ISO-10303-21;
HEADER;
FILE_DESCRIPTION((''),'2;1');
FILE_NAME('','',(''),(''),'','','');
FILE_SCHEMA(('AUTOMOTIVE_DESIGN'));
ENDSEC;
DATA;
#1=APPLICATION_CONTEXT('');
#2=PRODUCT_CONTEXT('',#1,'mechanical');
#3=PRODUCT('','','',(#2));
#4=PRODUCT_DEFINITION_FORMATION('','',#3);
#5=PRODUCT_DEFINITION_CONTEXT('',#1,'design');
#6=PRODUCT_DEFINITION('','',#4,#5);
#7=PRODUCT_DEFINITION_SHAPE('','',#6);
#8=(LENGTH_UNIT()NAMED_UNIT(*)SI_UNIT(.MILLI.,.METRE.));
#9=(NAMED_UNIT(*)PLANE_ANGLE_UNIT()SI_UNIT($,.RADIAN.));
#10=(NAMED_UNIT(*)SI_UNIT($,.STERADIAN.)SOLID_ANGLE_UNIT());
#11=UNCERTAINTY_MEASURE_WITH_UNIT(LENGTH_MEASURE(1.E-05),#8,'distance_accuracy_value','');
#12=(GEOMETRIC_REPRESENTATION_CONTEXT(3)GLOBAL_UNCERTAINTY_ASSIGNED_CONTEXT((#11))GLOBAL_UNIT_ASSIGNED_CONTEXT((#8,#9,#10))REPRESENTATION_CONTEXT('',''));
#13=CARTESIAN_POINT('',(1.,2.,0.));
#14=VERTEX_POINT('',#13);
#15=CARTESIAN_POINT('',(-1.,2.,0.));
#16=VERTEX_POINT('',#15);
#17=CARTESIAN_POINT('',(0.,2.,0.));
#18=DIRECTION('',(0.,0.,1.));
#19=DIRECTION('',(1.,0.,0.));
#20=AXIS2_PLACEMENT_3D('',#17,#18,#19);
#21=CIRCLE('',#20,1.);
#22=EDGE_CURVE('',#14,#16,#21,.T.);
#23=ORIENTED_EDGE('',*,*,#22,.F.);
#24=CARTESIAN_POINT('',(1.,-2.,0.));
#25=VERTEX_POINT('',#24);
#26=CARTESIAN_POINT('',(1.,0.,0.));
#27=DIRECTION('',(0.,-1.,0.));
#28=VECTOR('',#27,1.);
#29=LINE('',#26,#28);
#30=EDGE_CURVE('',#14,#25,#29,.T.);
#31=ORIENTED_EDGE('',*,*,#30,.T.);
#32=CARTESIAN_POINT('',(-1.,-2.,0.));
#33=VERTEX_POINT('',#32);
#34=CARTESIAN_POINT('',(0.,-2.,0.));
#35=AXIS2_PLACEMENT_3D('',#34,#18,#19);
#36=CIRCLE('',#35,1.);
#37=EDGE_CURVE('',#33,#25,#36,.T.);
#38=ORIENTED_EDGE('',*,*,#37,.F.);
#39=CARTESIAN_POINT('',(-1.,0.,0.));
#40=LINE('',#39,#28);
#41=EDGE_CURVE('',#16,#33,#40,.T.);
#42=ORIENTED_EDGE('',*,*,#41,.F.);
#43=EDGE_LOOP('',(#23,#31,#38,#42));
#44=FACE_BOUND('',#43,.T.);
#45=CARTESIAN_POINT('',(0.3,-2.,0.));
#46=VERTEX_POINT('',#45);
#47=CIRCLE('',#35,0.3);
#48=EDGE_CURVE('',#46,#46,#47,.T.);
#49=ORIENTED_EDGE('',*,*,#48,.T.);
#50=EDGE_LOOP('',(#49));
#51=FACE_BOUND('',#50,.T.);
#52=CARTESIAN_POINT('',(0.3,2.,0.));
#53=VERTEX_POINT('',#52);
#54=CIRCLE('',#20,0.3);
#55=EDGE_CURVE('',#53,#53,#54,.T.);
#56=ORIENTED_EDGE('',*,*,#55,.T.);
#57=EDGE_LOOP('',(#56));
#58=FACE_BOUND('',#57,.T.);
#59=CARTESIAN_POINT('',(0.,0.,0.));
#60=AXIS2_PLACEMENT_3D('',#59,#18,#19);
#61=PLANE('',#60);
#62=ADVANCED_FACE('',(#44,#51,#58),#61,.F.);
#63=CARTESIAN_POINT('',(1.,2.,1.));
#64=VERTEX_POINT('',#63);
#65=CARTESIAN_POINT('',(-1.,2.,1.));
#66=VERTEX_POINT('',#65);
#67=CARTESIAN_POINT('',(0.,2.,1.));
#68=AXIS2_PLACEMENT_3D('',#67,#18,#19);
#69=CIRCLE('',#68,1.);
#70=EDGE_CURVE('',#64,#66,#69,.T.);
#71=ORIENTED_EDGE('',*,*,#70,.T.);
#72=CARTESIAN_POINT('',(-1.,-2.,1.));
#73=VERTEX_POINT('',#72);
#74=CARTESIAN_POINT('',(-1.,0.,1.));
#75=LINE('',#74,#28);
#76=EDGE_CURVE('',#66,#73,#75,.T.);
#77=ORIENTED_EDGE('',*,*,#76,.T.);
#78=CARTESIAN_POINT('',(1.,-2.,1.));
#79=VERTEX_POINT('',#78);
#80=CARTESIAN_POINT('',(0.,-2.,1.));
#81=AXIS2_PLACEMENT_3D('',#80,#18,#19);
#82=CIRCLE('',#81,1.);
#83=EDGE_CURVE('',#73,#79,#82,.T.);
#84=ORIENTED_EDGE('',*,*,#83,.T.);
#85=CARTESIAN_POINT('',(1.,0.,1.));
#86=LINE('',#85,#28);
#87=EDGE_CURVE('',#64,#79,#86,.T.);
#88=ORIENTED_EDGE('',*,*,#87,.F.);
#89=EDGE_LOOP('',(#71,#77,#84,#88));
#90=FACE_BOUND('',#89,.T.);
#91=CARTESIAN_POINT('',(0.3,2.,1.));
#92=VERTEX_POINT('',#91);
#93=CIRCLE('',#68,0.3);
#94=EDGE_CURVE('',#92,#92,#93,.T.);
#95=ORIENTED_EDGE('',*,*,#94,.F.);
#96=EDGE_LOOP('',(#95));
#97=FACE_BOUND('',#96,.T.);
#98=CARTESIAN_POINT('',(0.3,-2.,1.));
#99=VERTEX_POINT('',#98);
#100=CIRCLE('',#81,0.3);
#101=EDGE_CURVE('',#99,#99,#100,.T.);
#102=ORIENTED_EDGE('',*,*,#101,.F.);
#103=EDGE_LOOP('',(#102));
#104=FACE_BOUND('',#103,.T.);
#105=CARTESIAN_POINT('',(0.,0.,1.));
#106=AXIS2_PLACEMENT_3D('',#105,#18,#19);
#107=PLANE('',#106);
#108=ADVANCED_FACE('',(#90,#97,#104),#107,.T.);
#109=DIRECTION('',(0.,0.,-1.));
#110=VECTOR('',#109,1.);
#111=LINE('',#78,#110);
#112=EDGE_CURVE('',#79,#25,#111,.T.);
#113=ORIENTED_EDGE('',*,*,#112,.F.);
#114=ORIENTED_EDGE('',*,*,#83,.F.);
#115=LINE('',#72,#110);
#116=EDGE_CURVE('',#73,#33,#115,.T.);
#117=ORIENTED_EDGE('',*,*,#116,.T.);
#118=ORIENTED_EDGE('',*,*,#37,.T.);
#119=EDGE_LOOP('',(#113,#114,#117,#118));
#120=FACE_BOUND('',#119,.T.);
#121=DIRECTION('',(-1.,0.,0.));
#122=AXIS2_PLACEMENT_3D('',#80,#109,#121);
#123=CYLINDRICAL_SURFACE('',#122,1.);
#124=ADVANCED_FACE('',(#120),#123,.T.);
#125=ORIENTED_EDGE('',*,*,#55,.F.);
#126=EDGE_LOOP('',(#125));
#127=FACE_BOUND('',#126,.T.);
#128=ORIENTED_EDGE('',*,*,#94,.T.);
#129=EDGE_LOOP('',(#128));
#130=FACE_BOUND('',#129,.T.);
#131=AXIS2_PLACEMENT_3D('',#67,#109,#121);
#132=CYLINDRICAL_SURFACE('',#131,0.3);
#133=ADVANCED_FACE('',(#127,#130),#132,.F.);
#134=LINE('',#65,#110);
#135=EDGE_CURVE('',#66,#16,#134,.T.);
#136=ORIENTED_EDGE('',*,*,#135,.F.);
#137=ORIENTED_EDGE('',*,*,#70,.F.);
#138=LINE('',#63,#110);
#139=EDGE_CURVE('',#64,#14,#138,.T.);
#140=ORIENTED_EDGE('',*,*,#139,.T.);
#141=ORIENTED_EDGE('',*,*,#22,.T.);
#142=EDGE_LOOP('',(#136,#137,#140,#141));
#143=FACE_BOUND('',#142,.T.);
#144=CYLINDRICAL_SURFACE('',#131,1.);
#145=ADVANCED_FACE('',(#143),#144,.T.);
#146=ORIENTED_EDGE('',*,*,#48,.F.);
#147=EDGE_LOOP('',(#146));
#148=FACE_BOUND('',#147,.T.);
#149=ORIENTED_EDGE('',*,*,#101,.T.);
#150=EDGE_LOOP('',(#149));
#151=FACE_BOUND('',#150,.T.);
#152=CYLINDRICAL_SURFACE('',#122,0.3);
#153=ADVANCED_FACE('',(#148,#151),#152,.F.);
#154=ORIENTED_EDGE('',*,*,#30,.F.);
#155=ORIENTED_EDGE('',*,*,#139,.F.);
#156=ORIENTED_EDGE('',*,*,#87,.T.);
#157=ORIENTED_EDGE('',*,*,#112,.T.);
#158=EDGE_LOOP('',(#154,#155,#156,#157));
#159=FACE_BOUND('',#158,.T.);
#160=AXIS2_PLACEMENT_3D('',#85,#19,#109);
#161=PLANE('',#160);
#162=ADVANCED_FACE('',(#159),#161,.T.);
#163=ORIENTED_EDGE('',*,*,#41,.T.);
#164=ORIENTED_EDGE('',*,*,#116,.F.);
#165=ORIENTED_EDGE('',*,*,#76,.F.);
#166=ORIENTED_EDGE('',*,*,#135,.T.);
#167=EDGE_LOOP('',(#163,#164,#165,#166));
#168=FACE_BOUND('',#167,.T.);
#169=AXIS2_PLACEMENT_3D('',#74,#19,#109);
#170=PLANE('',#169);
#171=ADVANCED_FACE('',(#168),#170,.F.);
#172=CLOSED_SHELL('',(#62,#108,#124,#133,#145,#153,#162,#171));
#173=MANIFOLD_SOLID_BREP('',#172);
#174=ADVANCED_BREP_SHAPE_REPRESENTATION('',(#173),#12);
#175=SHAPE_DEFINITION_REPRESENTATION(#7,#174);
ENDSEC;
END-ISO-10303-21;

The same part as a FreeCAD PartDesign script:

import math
import FreeCAD as App
import Part
import Sketcher

doc = App.newDocument("Part")
body = doc.addObject("PartDesign::Body", "Body")

sketch1 = doc.addObject("Sketcher::SketchObject", "Sketch")
body.addObject(sketch1)
sketch1.AttachmentSupport = (doc.XY_Plane, [""])
sketch1.MapMode = "FlatFace"
sketch1.addGeometry(Part.LineSegment(App.Vector(-1, 2, 0), App.Vector(-1, -2, 0)), False)
sketch1.addGeometry(Part.ArcOfCircle(Part.Circle(App.Vector(0, -2, 0), App.Vector(0, 0, 1), 1), math.radians(180), math.radians(360)), False)
sketch1.addGeometry(Part.LineSegment(App.Vector(1, -2, 0), App.Vector(1, 2, 0)), False)
sketch1.addGeometry(Part.ArcOfCircle(Part.Circle(App.Vector(0, 2, 0), App.Vector(0, 0, 1), 1), math.radians(0), math.radians(180)), False)
sketch1.addGeometry(Part.Circle(App.Vector(0, 2, 0), App.Vector(0, 0, 1), 0.3), False)
sketch1.addGeometry(Part.Circle(App.Vector(0, -2, 0), App.Vector(0, 0, 1), 0.3), False)
sketch1.addConstraint(Sketcher.Constraint("Tangent", 0, 2, 1, 1))
sketch1.addConstraint(Sketcher.Constraint("Tangent", 1, 2, 2, 1))
sketch1.addConstraint(Sketcher.Constraint("Tangent", 2, 2, 3, 1))
sketch1.addConstraint(Sketcher.Constraint("Tangent", 3, 2, 0, 1))
sketch1.addConstraint(Sketcher.Constraint("Vertical", 0))
sketch1.addConstraint(Sketcher.Constraint("Vertical", 2))
sketch1.addConstraint(Sketcher.Constraint("Coincident", 4, 3, 3, 3))
sketch1.addConstraint(Sketcher.Constraint("Coincident", 5, 3, 1, 3))
sketch1.addConstraint(Sketcher.Constraint("Equal", 4, 5))
sketch1.addConstraint(Sketcher.Constraint("Symmetric", 1, 3, 3, 3, -1, 1))
sketch1.addConstraint(Sketcher.Constraint("Radius", 1, 1.0))
sketch1.addConstraint(Sketcher.Constraint("Diameter", 4, 0.6))
sketch1.addConstraint(Sketcher.Constraint("DistanceY", 0, 2, 0, 1, 4.0))
pad1 = doc.addObject("PartDesign::Pad", "Pad")
body.addObject(pad1)
pad1.Profile = sketch1
pad1.Length = 1

doc.recompute()
